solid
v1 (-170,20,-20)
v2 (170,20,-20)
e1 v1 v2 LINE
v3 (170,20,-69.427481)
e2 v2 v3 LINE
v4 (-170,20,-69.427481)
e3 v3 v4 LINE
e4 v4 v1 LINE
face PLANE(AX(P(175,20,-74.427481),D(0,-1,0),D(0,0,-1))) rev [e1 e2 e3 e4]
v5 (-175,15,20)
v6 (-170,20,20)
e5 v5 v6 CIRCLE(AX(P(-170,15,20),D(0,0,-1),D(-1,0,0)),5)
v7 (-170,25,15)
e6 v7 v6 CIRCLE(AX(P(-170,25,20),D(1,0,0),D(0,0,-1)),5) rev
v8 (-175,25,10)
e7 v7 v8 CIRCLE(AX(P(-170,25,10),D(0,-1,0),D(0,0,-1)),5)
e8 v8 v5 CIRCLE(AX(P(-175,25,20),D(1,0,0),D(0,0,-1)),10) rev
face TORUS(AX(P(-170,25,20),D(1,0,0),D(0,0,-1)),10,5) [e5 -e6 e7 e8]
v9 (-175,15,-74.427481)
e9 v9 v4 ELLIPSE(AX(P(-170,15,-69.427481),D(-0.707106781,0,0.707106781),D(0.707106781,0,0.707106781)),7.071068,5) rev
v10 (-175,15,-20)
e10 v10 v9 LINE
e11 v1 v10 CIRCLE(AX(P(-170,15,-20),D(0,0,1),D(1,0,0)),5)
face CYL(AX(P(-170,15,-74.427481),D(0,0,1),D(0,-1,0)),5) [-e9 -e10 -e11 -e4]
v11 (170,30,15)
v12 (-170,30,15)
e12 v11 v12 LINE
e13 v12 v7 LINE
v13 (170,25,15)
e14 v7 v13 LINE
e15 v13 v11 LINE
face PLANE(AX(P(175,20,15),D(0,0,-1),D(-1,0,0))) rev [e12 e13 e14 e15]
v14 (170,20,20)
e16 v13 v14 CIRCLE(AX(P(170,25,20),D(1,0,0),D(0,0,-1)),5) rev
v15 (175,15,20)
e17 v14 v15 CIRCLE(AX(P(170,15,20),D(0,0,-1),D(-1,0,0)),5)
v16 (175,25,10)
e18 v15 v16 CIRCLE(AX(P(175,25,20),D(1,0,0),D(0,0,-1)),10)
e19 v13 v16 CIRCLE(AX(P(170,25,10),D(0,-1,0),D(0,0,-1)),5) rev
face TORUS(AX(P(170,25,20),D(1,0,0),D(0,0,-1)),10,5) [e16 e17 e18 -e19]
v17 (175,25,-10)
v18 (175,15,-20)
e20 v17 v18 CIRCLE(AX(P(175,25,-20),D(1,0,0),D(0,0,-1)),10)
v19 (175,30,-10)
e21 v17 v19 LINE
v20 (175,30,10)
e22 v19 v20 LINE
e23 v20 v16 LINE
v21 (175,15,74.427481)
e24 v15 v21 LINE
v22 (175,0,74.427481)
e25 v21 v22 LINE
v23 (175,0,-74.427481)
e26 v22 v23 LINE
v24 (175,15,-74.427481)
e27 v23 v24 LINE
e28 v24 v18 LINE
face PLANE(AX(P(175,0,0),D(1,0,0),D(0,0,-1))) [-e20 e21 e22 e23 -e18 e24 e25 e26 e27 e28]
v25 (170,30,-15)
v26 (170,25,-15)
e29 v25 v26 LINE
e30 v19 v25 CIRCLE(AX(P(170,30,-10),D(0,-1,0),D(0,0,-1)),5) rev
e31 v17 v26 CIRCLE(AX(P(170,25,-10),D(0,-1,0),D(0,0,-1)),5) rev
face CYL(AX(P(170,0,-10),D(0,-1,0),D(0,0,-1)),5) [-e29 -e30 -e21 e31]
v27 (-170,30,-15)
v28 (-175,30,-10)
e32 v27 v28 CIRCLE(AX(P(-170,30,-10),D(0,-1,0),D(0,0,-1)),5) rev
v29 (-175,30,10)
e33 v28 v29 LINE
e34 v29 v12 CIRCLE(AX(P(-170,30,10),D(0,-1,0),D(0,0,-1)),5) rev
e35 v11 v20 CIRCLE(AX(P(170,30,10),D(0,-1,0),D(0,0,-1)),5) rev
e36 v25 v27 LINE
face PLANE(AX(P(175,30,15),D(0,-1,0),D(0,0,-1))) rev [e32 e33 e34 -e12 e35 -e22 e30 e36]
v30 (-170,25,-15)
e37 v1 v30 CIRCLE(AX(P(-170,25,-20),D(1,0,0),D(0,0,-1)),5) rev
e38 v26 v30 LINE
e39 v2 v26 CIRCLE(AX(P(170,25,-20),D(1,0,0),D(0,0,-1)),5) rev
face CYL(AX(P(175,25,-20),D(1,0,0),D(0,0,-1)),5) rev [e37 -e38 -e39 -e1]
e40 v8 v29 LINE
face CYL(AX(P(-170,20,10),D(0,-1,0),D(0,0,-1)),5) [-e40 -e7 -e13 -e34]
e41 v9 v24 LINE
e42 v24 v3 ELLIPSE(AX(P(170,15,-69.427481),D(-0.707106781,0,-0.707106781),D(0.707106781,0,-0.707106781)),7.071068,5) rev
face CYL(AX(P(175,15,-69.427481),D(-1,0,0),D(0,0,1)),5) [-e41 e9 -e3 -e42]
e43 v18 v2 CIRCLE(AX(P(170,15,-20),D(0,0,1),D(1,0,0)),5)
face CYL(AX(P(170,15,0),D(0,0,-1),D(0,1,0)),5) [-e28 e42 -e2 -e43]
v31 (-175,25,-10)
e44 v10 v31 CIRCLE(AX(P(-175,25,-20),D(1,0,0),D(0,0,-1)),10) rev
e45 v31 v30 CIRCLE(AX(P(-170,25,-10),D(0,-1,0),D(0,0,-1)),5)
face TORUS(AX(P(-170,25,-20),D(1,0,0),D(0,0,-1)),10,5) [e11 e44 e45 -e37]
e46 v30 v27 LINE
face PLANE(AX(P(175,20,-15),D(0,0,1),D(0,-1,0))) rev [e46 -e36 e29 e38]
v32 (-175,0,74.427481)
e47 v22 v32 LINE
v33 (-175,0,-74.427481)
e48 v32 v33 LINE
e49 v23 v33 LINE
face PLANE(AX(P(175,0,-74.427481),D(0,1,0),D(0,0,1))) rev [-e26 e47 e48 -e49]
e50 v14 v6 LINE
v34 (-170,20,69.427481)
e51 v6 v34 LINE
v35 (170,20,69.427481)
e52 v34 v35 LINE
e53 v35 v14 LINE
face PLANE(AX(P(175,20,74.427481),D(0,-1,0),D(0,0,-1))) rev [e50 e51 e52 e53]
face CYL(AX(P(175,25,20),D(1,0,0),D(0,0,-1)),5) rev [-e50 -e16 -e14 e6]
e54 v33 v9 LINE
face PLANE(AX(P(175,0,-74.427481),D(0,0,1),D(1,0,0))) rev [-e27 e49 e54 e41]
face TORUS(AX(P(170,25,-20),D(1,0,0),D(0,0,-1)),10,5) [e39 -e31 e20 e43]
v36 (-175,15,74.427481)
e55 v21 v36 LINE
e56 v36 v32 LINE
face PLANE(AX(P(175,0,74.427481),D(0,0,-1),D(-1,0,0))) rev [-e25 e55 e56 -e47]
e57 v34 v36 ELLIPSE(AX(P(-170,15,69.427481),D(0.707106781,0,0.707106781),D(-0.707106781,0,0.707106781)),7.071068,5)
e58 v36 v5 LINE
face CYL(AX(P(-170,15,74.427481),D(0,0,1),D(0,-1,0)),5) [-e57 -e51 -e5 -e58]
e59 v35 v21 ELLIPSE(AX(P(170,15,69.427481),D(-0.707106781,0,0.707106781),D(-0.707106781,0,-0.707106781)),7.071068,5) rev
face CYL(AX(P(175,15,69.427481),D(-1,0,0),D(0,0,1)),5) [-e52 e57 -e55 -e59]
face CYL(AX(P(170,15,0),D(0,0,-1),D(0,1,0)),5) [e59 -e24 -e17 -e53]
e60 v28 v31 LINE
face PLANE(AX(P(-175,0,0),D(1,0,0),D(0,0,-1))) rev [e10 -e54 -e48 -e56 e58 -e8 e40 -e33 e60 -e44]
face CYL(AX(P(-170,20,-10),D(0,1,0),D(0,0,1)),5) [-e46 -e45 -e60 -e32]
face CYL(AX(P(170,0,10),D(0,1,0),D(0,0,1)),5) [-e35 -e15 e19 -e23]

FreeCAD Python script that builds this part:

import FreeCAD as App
import Part
import Sketcher
from FreeCAD import Vector


def edges_at(feature, points):
    """Names of the edges that pass closest to the given points."""
    edges = feature.Shape.Edges
    near = lambda p: min(range(len(edges)), key=lambda i: edges[i].distToShape(Part.Vertex(*p))[0])
    return sorted({f"Edge{near(p) + 1}" for p in points})

doc = App.newDocument("Part")
body = doc.addObject("PartDesign::Body", "Body")

# Sketch on YZ plane
sketch1 = doc.addObject("Sketcher::SketchObject", "Sketch")
body.addObject(sketch1)
sketch1.AttachmentSupport = (doc.YZ_Plane, [""])
sketch1.MapMode = "FlatFace"
sketch1.addGeometry([
    Part.LineSegment(Vector(0, 74, 0), Vector(0, -74, 0)),  # 0
    Part.LineSegment(Vector(0, -74, 0), Vector(20, -74, 0)),  # 1
    Part.LineSegment(Vector(20, -74, 0), Vector(20, -15, 0)),  # 2
    Part.LineSegment(Vector(20, -15, 0), Vector(30, -15, 0)),  # 3
    Part.LineSegment(Vector(30, -15, 0), Vector(30, 15, 0)),  # 4
    Part.LineSegment(Vector(30, 15, 0), Vector(20, 15, 0)),  # 5
    Part.LineSegment(Vector(20, 15, 0), Vector(20, 74, 0)),  # 6
    Part.LineSegment(Vector(20, 74, 0), Vector(0, 74, 0)),  # 7
], False)
sketch1.addConstraint([
    Sketcher.Constraint("Coincident", 0, 2, 1, 1),
    Sketcher.Constraint("Coincident", 1, 2, 2, 1),
    Sketcher.Constraint("Coincident", 2, 2, 3, 1),
    Sketcher.Constraint("Coincident", 3, 2, 4, 1),
    Sketcher.Constraint("Coincident", 4, 2, 5, 1),
    Sketcher.Constraint("Coincident", 5, 2, 6, 1),
    Sketcher.Constraint("Coincident", 6, 2, 7, 1),
    Sketcher.Constraint("Coincident", 7, 2, 0, 1),
    Sketcher.Constraint("Vertical", 0),
    Sketcher.Constraint("Horizontal", 1),
    Sketcher.Constraint("Vertical", 2),
    Sketcher.Constraint("Horizontal", 3),
    Sketcher.Constraint("Vertical", 4),
    Sketcher.Constraint("Horizontal", 5),
    Sketcher.Constraint("Vertical", 6),
    Sketcher.Constraint("Horizontal", 7),
    Sketcher.Constraint("Symmetric", 0, 2, 7, 2, -1, 1),
    Sketcher.Constraint("Symmetric", 2, 2, 5, 2, -1),
    Sketcher.Constraint("DistanceX", 1, 1, 1, 2, 20.0),
    Sketcher.Constraint("DistanceX", 3, 1, 3, 2, 10.0),
    Sketcher.Constraint("DistanceY", 4, 1, 4, 2, 30.0),
    Sketcher.Constraint("DistanceY", 0, 2, 0, 1, 148.854962),
])
pad1 = doc.addObject("PartDesign::Pad", "Pad")
body.addObject(pad1)
pad1.Profile = sketch1
pad1.Length = 350
pad1.Midplane = True
doc.recompute()

fillet = doc.addObject("PartDesign::Fillet", "Fillet")
body.addObject(fillet)
fillet.Base = (pad1, edges_at(pad1, [
    (-175, 25, -15),
    (-175, 20, -44.714),
    (175, 25, -15),
    (0, 20, 74.427),
    (0, 20, 15),
    (0, 20, -15),
    (0, 20, -74.427),
    (175, 25, 15),
    (175, 20, 44.714),
    (175, 20, -44.714),
    (-175, 20, 44.714),
    (-175, 25, 15),
]))
fillet.Radius = 5

doc.recompute()
